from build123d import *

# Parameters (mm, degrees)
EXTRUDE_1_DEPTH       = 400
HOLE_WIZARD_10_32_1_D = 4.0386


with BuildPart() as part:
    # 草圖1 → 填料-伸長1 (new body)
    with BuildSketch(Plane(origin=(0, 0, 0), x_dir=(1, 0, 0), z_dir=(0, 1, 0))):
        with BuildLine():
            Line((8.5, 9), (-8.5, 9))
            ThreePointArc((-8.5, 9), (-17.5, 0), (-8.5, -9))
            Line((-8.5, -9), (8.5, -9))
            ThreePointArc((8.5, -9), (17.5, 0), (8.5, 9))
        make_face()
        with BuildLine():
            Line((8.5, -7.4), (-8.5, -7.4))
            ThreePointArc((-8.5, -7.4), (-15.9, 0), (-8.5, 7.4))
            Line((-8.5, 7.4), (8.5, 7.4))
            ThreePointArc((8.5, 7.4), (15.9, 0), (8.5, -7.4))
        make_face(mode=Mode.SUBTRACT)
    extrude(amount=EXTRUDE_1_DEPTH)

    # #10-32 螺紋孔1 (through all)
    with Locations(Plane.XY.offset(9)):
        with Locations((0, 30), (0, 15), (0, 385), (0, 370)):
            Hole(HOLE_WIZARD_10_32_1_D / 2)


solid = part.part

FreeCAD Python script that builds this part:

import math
import FreeCAD as App
import Part
import Sketcher

V = App.Vector

doc = App.newDocument("Part")
body = doc.addObject("PartDesign::Body", "Body")

sketch1 = body.newObject("Sketcher::SketchObject", "Sketch")
sketch1.AttachmentSupport = (doc.getObject("XZ_Plane"), [""])
sketch1.MapMode = "FlatFace"
sketch1.addGeometry(Part.LineSegment(V(8.5, -9, 0), V(-8.5, -9, 0)), False)
sketch1.addGeometry(Part.ArcOfCircle(Part.Circle(V(-8.5, 0, 0), V(0, 0, 1), 9), math.radians(90), math.radians(270)), False)
sketch1.addGeometry(Part.LineSegment(V(-8.5, 9, 0), V(8.5, 9, 0)), False)
sketch1.addGeometry(Part.ArcOfCircle(Part.Circle(V(8.5, 0, 0), V(0, 0, 1), 9), math.radians(-90), math.radians(90)), False)
sketch1.addGeometry(Part.ArcOfCircle(Part.Circle(V(8.5, 0, 0), V(0, 0, 1), 7.4), math.radians(-90), math.radians(90)), False)
sketch1.addGeometry(Part.LineSegment(V(8.5, 7.4, 0), V(-8.5, 7.4, 0)), False)
sketch1.addGeometry(Part.ArcOfCircle(Part.Circle(V(-8.5, 0, 0), V(0, 0, 1), 7.4), math.radians(90), math.radians(270)), False)
sketch1.addGeometry(Part.LineSegment(V(-8.5, -7.4, 0), V(8.5, -7.4, 0)), False)
sketch1.addConstraint(Sketcher.Constraint("Tangent", 0, 2, 1, 2))
sketch1.addConstraint(Sketcher.Constraint("Tangent", 1, 1, 2, 1))
sketch1.addConstraint(Sketcher.Constraint("Tangent", 2, 2, 3, 2))
sketch1.addConstraint(Sketcher.Constraint("Tangent", 3, 1, 0, 1))
sketch1.addConstraint(Sketcher.Constraint("Tangent", 4, 2, 5, 1))
sketch1.addConstraint(Sketcher.Constraint("Tangent", 5, 2, 6, 1))
sketch1.addConstraint(Sketcher.Constraint("Tangent", 6, 2, 7, 1))
sketch1.addConstraint(Sketcher.Constraint("Tangent", 7, 2, 4, 1))
sketch1.addConstraint(Sketcher.Constraint("Horizontal", 0))
sketch1.addConstraint(Sketcher.Constraint("Horizontal", 2))
sketch1.addConstraint(Sketcher.Constraint("Horizontal", 5))
sketch1.addConstraint(Sketcher.Constraint("Horizontal", 7))
sketch1.addConstraint(Sketcher.Constraint("Coincident", 4, 3, 3, 3))
sketch1.addConstraint(Sketcher.Constraint("Symmetric", 1, 3, 3, 3, -1, 1))
sketch1.addConstraint(Sketcher.Constraint("Vertical", 6, 3, 0, 2))
sketch1.addConstraint(Sketcher.Constraint("Radius", 1, 9.0))
sketch1.addConstraint(Sketcher.Constraint("Radius", 4, 7.4))
sketch1.addConstraint(Sketcher.Constraint("DistanceX", 0, 2, 0, 1, 17.0))
pad1 = body.newObject("PartDesign::Pad", "Pad")
pad1.Profile = sketch1
pad1.Length = 400
pad1.Reversed = True

sketch2 = body.newObject("Sketcher::SketchObject", "Sketch001")
sketch2.AttachmentSupport = (doc.getObject("XY_Plane"), [""])
sketch2.MapMode = "FlatFace"
sketch2.AttachmentOffset = App.Placement(V(0, 0, 9), App.Rotation())
sketch2.addGeometry(Part.Circle(V(0, 30, 0), V(0, 0, 1), 2.0193), False)
sketch2.addGeometry(Part.Circle(V(0, 15, 0), V(0, 0, 1), 2.0193), False)
sketch2.addGeometry(Part.Circle(V(0, 385, 0), V(0, 0, 1), 2.0193), False)
sketch2.addGeometry(Part.Circle(V(0, 370, 0), V(0, 0, 1), 2.0193), False)
sketch2.addConstraint(Sketcher.Constraint("Equal", 0, 1))
sketch2.addConstraint(Sketcher.Constraint("Equal", 1, 2))
sketch2.addConstraint(Sketcher.Constraint("Equal", 2, 3))
sketch2.addConstraint(Sketcher.Constraint("PointOnObject", 0, 3, -2))
sketch2.addConstraint(Sketcher.Constraint("PointOnObject", 1, 3, -2))
sketch2.addConstraint(Sketcher.Constraint("PointOnObject", 2, 3, -2))
sketch2.addConstraint(Sketcher.Constraint("PointOnObject", 3, 3, -2))
sketch2.addConstraint(Sketcher.Constraint("DistanceY", -1, 1, 0, 3, 30.0))
sketch2.addConstraint(Sketcher.Constraint("DistanceY", -1, 1, 1, 3, 15.0))
sketch2.addConstraint(Sketcher.Constraint("DistanceY", -1, 1, 2, 3, 385.0))
sketch2.addConstraint(Sketcher.Constraint("DistanceY", -1, 1, 3, 3, 370.0))
sketch2.addConstraint(Sketcher.Constraint("Diameter", 0, 4.0386))
doc.recompute()
hole = body.newObject("PartDesign::Hole", "Hole")
hole.Profile = sketch2
hole.ThreadType = "None"
hole.Diameter = 4.0386
hole.DepthType = "ThroughAll"

doc.recompute()
